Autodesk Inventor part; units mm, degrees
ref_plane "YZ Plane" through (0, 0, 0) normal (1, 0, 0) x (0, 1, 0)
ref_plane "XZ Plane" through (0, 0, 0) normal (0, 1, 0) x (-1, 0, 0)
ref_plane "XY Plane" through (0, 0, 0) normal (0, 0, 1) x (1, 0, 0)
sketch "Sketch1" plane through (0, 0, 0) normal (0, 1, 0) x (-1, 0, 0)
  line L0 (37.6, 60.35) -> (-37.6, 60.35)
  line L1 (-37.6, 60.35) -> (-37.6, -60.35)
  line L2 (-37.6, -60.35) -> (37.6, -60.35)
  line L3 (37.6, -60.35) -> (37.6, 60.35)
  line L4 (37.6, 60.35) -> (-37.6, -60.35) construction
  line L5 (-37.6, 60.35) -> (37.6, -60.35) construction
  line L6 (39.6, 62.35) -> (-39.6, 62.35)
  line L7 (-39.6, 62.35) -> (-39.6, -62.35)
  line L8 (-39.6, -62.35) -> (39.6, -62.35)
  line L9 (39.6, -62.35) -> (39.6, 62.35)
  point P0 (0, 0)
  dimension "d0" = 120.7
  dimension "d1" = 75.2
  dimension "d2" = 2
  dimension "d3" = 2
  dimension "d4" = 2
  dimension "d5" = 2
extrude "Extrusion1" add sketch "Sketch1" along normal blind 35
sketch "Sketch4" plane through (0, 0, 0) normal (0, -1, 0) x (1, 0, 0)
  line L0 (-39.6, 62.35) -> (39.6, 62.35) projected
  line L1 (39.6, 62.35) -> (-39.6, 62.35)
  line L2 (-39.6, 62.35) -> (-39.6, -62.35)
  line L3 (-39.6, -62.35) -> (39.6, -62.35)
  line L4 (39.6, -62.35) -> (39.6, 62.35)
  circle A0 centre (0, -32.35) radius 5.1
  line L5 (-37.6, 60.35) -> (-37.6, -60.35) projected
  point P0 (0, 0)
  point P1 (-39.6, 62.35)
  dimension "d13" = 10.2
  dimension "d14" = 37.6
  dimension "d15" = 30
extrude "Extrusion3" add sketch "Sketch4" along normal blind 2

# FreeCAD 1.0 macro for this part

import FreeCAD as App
import Part
import Sketcher


def add_polygon(sketch, points):
    """Adds a closed chain of lines whose ends are joined by coincident constraints."""
    first, n = sketch.GeometryCount, len(points)
    for a, b in zip(points, points[1:] + points[:1]):
        sketch.addGeometry(Part.LineSegment(App.Vector(*a, 0), App.Vector(*b, 0)), False)
    for i in range(n):
        sketch.addConstraint(Sketcher.Constraint("Coincident", first + i, 2, first + (i + 1) % n, 1))

doc = App.newDocument("Part")
body = doc.addObject("PartDesign::Body", "Body")

# Sketch on XZ plane
sketch1 = doc.addObject("Sketcher::SketchObject", "Sketch")
body.addObject(sketch1)
sketch1.AttachmentSupport = (doc.XZ_Plane, [""])
sketch1.MapMode = "FlatFace"
add_polygon(sketch1, [(-40, -62), (-40, 62), (40, 62), (40, -62)])  # lines 0-3
add_polygon(sketch1, [(38, 60), (-38, 60), (-38, -60), (38, -60)])  # lines 4-7
sketch1.addConstraint([
    Sketcher.Constraint("Vertical", 0),
    Sketcher.Constraint("Horizontal", 1),
    Sketcher.Constraint("Vertical", 2),
    Sketcher.Constraint("Horizontal", 3),
    Sketcher.Constraint("Horizontal", 4),
    Sketcher.Constraint("Vertical", 5),
    Sketcher.Constraint("Horizontal", 6),
    Sketcher.Constraint("Vertical", 7),
    Sketcher.Constraint("Symmetric", 0, 2, 2, 2, -1, 1),
    Sketcher.Constraint("Symmetric", 4, 2, 6, 2, -1, 1),
    Sketcher.Constraint("DistanceX", 4, 2, 4, 1, 75.2),
    Sketcher.Constraint("DistanceY", 5, 2, 5, 1, 120.7),
    Sketcher.Constraint("DistanceX", 0, 2, 4, 2, 2.0),
    Sketcher.Constraint("DistanceY", 4, 2, 0, 2, 2.0),
])
pad1 = doc.addObject("PartDesign::Pad", "Pad")
body.addObject(pad1)
pad1.Profile = sketch1
pad1.Length = 35
pad1.Reversed = True

# Sketch on XZ plane
sketch2 = doc.addObject("Sketcher::SketchObject", "Sketch001")
body.addObject(sketch2)
sketch2.AttachmentSupport = (doc.XZ_Plane, [""])
sketch2.MapMode = "FlatFace"
add_polygon(sketch2, [(40, 62), (-40, 62), (-40, -62), (40, -62)])  # lines 0-3
sketch2.addGeometry(Part.Circle(App.Vector(0, -32, 0), App.Vector(0, 0, 1), 5), False)  # 4
sketch2.addConstraint([
    Sketcher.Constraint("Horizontal", 0),
    Sketcher.Constraint("Vertical", 1),
    Sketcher.Constraint("Horizontal", 2),
    Sketcher.Constraint("Vertical", 3),
    Sketcher.Constraint("Symmetric", 0, 2, 2, 2, -1, 1),
    Sketcher.Constraint("PointOnObject", 4, 3, -2),
    Sketcher.Constraint("Diameter", 4, 10.2),
    Sketcher.Constraint("DistanceY", 1, 2, 4, 3, 30.0),
    Sketcher.Constraint("DistanceX", 0, 2, 0, 1, 79.2),
    Sketcher.Constraint("DistanceY", 1, 2, 1, 1, 124.7),
])
pad2 = doc.addObject("PartDesign::Pad", "Pad001")
body.addObject(pad2)
pad2.Profile = sketch2
pad2.Length = 2

doc.recompute()
